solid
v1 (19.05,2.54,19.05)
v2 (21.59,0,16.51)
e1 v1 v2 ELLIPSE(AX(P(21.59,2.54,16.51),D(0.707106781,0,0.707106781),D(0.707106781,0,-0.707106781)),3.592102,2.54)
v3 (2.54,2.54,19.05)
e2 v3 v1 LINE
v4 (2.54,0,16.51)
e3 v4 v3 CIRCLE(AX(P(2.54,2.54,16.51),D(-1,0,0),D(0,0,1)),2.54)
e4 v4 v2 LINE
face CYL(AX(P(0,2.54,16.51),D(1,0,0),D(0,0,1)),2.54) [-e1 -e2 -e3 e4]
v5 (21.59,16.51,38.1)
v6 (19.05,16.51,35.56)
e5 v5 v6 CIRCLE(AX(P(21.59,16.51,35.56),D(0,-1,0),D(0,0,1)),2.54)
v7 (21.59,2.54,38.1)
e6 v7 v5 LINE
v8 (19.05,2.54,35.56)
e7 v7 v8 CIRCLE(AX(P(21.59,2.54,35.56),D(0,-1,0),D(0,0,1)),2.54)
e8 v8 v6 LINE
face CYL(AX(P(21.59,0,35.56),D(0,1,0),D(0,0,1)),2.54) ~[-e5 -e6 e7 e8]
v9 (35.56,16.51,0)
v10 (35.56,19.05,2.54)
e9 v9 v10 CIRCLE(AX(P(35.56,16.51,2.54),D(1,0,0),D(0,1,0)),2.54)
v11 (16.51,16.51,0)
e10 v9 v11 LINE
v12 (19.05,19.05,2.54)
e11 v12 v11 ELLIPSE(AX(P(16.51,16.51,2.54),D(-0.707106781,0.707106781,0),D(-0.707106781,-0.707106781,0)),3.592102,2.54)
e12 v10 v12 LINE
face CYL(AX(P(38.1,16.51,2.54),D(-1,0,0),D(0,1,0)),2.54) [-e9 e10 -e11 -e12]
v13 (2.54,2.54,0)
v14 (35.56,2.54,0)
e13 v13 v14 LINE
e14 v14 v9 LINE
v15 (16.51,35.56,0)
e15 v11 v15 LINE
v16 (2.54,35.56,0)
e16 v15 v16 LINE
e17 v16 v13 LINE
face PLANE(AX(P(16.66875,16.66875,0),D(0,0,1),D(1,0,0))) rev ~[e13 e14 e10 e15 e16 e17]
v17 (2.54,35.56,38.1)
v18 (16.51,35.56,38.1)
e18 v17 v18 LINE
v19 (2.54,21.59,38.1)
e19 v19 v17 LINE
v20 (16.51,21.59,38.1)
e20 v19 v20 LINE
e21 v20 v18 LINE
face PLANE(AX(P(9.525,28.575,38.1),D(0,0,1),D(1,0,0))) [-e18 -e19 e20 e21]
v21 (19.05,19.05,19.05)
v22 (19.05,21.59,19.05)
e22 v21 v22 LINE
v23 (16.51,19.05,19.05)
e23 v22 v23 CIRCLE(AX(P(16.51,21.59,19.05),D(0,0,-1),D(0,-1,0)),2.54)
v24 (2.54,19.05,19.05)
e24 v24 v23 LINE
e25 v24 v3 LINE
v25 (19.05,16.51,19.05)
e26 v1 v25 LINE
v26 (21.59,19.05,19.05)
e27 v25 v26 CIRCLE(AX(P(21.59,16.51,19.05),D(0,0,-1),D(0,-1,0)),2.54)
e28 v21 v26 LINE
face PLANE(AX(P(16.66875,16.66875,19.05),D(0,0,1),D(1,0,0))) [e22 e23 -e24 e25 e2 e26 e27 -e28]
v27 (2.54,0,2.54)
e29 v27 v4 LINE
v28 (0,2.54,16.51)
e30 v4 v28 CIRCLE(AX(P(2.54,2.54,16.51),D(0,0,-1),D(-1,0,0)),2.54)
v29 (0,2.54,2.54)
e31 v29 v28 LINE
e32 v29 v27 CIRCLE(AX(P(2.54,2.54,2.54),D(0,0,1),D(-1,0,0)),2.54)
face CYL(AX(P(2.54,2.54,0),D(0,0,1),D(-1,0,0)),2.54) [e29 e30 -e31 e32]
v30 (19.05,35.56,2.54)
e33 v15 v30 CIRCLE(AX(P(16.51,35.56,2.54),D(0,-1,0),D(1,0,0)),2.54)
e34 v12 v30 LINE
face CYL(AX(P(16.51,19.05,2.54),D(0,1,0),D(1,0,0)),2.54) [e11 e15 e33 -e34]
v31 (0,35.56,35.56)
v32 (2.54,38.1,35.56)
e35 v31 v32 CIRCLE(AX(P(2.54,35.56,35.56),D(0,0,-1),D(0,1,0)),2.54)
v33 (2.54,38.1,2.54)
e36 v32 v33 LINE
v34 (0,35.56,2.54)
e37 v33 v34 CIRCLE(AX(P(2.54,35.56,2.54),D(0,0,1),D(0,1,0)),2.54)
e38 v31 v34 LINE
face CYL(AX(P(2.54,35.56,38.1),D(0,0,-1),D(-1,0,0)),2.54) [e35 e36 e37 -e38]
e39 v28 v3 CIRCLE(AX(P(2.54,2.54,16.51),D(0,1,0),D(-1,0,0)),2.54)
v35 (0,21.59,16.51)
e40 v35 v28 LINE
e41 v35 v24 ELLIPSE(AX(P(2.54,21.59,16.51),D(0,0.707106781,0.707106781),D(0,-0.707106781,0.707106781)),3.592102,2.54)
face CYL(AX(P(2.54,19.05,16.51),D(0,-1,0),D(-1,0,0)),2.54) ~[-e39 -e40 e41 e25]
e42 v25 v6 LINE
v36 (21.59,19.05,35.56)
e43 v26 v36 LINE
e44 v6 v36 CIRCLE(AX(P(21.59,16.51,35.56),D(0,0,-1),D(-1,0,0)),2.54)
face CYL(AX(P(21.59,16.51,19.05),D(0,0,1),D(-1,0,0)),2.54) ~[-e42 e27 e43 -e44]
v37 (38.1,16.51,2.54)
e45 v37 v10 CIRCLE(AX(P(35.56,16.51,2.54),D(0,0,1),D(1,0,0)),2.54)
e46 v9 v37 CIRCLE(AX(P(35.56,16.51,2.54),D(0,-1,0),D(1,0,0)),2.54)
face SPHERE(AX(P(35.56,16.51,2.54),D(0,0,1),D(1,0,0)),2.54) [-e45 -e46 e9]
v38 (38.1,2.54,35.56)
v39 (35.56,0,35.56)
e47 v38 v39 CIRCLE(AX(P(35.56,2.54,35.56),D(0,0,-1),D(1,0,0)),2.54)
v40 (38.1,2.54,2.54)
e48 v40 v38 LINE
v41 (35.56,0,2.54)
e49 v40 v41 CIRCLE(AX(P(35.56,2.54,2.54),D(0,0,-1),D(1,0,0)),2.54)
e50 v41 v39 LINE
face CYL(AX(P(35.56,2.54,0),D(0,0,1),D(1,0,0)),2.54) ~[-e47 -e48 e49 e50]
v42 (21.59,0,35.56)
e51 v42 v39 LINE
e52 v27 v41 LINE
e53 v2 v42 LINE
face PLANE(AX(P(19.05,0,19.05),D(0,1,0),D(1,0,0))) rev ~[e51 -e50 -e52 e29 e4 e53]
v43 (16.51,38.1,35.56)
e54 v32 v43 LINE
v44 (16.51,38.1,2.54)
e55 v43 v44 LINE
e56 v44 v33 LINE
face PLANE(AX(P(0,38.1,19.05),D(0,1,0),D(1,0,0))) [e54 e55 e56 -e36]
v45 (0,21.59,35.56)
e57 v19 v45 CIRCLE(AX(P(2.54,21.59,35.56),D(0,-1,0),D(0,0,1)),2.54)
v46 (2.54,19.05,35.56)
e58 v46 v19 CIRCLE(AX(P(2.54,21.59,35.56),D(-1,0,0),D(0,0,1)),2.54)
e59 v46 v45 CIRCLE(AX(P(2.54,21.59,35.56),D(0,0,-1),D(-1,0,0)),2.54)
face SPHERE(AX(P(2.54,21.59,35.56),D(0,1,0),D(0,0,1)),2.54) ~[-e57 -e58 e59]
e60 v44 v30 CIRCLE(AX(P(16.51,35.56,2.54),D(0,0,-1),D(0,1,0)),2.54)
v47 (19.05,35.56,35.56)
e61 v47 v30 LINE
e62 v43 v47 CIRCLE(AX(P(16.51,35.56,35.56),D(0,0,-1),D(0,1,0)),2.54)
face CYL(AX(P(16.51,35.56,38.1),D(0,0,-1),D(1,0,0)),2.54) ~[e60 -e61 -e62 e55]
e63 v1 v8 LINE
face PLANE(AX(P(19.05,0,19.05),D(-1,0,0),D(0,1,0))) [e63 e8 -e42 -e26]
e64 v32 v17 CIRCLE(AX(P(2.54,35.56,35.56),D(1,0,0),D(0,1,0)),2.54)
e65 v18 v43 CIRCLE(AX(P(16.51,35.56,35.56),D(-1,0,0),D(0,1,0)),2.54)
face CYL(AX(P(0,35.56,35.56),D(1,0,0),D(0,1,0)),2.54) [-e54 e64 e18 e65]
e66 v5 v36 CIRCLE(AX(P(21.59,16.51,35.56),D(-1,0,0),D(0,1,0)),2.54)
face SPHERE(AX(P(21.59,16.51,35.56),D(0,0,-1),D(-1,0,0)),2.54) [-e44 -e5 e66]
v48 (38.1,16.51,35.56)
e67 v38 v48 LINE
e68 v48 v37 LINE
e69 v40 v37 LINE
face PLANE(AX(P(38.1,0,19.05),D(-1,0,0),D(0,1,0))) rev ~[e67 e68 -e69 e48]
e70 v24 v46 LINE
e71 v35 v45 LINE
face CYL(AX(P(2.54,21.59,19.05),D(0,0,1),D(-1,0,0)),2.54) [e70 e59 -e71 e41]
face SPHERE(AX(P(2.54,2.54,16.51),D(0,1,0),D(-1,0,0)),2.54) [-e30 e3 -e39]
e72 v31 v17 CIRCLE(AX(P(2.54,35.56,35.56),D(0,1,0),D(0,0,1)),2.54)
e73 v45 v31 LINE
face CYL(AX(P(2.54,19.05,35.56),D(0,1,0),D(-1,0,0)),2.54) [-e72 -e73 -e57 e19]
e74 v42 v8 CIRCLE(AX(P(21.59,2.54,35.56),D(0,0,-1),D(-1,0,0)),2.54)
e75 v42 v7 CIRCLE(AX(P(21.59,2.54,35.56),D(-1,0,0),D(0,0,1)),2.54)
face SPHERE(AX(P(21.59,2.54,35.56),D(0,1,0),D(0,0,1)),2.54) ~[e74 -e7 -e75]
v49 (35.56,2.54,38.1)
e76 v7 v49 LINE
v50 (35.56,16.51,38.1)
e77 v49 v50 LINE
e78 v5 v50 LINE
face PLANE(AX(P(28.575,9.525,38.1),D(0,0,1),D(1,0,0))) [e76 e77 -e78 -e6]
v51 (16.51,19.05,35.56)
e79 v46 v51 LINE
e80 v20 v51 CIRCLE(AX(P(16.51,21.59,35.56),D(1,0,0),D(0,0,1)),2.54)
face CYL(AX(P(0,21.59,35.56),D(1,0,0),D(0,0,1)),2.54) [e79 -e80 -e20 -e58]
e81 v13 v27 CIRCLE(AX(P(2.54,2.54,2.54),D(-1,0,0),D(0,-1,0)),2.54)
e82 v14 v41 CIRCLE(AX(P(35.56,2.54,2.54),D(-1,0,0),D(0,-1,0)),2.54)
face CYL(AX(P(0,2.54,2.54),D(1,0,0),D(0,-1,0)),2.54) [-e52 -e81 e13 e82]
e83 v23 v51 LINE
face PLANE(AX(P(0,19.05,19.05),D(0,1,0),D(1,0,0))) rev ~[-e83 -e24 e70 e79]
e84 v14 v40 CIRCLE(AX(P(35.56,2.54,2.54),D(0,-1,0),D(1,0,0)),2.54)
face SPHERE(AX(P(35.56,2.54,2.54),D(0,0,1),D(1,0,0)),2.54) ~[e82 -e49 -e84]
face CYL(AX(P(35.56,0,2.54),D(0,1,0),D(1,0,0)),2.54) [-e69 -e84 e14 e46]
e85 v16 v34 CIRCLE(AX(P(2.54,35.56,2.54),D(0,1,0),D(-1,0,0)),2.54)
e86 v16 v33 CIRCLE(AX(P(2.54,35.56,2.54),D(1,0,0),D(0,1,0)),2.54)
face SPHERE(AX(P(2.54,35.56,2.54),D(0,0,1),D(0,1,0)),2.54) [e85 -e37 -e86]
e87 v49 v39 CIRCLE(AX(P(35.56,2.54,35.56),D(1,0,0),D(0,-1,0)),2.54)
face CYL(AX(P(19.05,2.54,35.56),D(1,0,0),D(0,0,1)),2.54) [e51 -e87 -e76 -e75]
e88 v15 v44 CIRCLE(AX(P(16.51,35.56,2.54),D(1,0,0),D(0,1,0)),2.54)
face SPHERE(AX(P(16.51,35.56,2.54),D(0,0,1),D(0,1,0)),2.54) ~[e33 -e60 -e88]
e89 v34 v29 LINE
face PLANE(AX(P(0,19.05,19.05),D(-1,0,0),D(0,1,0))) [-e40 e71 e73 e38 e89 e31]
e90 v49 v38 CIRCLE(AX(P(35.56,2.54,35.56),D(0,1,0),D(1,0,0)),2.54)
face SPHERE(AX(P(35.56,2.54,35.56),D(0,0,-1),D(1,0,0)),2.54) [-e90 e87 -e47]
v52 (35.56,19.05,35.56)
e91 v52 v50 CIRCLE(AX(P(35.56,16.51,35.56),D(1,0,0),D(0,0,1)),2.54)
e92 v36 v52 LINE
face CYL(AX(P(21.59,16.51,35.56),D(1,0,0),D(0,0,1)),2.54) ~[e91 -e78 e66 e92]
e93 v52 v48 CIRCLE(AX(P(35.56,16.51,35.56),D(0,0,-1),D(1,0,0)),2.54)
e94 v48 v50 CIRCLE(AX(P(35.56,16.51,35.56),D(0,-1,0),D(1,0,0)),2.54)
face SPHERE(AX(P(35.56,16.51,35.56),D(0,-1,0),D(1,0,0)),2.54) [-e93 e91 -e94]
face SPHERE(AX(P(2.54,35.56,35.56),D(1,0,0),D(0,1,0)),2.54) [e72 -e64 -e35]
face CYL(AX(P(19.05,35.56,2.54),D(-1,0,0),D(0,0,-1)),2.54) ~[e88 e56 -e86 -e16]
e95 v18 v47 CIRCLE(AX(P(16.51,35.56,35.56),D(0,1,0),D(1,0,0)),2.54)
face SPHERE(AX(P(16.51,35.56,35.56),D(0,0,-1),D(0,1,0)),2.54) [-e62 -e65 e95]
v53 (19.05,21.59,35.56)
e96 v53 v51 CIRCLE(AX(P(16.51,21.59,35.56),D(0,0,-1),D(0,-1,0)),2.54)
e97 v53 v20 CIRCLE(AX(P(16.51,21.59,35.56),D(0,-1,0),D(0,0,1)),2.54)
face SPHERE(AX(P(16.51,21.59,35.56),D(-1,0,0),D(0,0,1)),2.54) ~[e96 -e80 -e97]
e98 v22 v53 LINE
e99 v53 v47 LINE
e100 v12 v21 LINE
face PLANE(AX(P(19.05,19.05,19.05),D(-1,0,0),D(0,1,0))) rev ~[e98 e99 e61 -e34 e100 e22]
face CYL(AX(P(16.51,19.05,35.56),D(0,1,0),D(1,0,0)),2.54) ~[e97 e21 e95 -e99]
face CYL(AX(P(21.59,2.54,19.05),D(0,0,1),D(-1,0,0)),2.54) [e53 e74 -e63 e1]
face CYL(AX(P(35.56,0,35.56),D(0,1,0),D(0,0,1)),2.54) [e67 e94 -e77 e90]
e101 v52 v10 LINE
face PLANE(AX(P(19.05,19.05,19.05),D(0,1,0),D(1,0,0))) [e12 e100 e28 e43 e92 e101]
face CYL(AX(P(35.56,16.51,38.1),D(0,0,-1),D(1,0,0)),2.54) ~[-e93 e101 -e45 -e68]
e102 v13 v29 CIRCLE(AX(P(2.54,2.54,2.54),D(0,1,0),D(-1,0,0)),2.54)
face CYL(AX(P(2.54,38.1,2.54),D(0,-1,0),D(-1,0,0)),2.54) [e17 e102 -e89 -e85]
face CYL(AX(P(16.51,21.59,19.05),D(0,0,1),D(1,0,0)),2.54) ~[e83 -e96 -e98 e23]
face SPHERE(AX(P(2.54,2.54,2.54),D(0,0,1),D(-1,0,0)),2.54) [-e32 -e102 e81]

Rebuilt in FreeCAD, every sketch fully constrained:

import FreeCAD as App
import Part
import Sketcher
Q = App.Units.Quantity


def edges_at(feature, points):
    """Names of the edges that pass closest to the given points."""
    edges = feature.Shape.Edges
    near = lambda p: min(range(len(edges)), key=lambda i: edges[i].distToShape(Part.Vertex(*p))[0])
    return sorted({f"Edge{near(p) + 1}" for p in points})

doc = App.newDocument("Part")
body = doc.addObject("PartDesign::Body", "Body")

# Sketch on XY plane
sketch1 = doc.addObject("Sketcher::SketchObject", "Sketch")
body.addObject(sketch1)
sketch1.AttachmentSupport = (doc.XY_Plane, [""])
sketch1.MapMode = "FlatFace"
sketch1.addGeometry([
    Part.LineSegment(App.Vector(0, 38, 0), App.Vector(0, 0, 0)),  # 0
    Part.LineSegment(App.Vector(0, 0, 0), App.Vector(38, 0, 0)),  # 1
    Part.LineSegment(App.Vector(38, 0, 0), App.Vector(38, 19, 0)),  # 2
    Part.LineSegment(App.Vector(38, 19, 0), App.Vector(19, 19, 0)),  # 3
    Part.LineSegment(App.Vector(19, 19, 0), App.Vector(19, 38, 0)),  # 4
    Part.LineSegment(App.Vector(19, 38, 0), App.Vector(0, 38, 0)),  # 5
], False)
sketch1.addConstraint([
    Sketcher.Constraint("Coincident", 0, 2, 1, 1),
    Sketcher.Constraint("Coincident", 1, 2, 2, 1),
    Sketcher.Constraint("Coincident", 2, 2, 3, 1),
    Sketcher.Constraint("Coincident", 3, 2, 4, 1),
    Sketcher.Constraint("Coincident", 4, 2, 5, 1),
    Sketcher.Constraint("Coincident", 5, 2, 0, 1),
    Sketcher.Constraint("Vertical", 0),
    Sketcher.Constraint("Horizontal", 1),
    Sketcher.Constraint("Vertical", 2),
    Sketcher.Constraint("Horizontal", 3),
    Sketcher.Constraint("Vertical", 4),
    Sketcher.Constraint("Horizontal", 5),
    Sketcher.Constraint("Coincident", 0, 2, -1, 1),
    Sketcher.Constraint("Equal", 3, 5),
    Sketcher.Constraint("Equal", 1, 0),
    Sketcher.Constraint("Equal", 5, 2),
    Sketcher.Constraint("DistanceX", 1, 1, 1, 2, Q("1.5 in")),
])
pad1 = doc.addObject("PartDesign::Pad", "Pad")
body.addObject(pad1)
pad1.Profile = sketch1
pad1.Length = Q("0.75 in")

# Sketch on XY plane
sketch2 = doc.addObject("Sketcher::SketchObject", "Sketch001")
body.addObject(sketch2)
sketch2.AttachmentSupport = (doc.XY_Plane, [""])
sketch2.MapMode = "FlatFace"
sketch2.AttachmentOffset = App.Placement(App.Vector(0, 0, 0.75 * 25.4), App.Rotation())
sketch2.addGeometry([
    Part.LineSegment(App.Vector(19, 19, 0), App.Vector(19, 0, 0)),
    Part.LineSegment(App.Vector(19, 0, 0), App.Vector(38, 0, 0)),
    Part.LineSegment(App.Vector(38, 0, 0), App.Vector(38, 19, 0)),
    Part.LineSegment(App.Vector(38, 19, 0), App.Vector(19, 19, 0)),
], False)
sketch2.addConstraint([
    Sketcher.Constraint("Coincident", 0, 2, 1, 1),
    Sketcher.Constraint("Coincident", 1, 2, 2, 1),
    Sketcher.Constraint("Coincident", 2, 2, 3, 1),
    Sketcher.Constraint("Coincident", 3, 2, 0, 1),
    Sketcher.Constraint("Vertical", 0),
    Sketcher.Constraint("Horizontal", 1),
    Sketcher.Constraint("Vertical", 2),
    Sketcher.Constraint("Horizontal", 3),
    Sketcher.Constraint("PointOnObject", 0, 2, -1),
    Sketcher.Constraint("Equal", 3, 0),
    Sketcher.Constraint("DistanceX", 1, 1, 1, 2, Q("0.75 in")),
    Sketcher.Constraint("DistanceX", -1, 1, 1, 2, Q("1.5 in")),
])
pad2 = doc.addObject("PartDesign::Pad", "Pad001")
body.addObject(pad2)
pad2.Profile = sketch2
pad2.Length = Q("0.75 in")
doc.recompute()

fillet = doc.addObject("PartDesign::Fillet", "Fillet")
body.addObject(fillet)
fillet.Base = (pad2, edges_at(pad2, [(19.05, 19.05, 28.575)]))
fillet.Radius = Q("0.1 in")

# Sketch on XY plane
sketch3 = doc.addObject("Sketcher::SketchObject", "Sketch002")
body.addObject(sketch3)
sketch3.AttachmentSupport = (doc.XY_Plane, [""])
sketch3.MapMode = "FlatFace"
sketch3.AttachmentOffset = App.Placement(App.Vector(0, 0, 0.75 * 25.4), App.Rotation())
sketch3.addGeometry([
    Part.LineSegment(App.Vector(0, 38, 0), App.Vector(0, 19, 0)),
    Part.LineSegment(App.Vector(0, 19, 0), App.Vector(19, 19, 0)),
    Part.LineSegment(App.Vector(19, 19, 0), App.Vector(19, 38, 0)),
    Part.LineSegment(App.Vector(19, 38, 0), App.Vector(0, 38, 0)),
], False)
sketch3.addConstraint([
    Sketcher.Constraint("Coincident", 0, 2, 1, 1),
    Sketcher.Constraint("Coincident", 1, 2, 2, 1),
    Sketcher.Constraint("Coincident", 2, 2, 3, 1),
    Sketcher.Constraint("Coincident", 3, 2, 0, 1),
    Sketcher.Constraint("Vertical", 0),
    Sketcher.Constraint("Horizontal", 1),
    Sketcher.Constraint("Vertical", 2),
    Sketcher.Constraint("Horizontal", 3),
    Sketcher.Constraint("PointOnObject", 0, 2, -2),
    Sketcher.Constraint("Equal", 3, 0),
    Sketcher.Constraint("DistanceX", 1, 1, 1, 2, Q("0.75 in")),
    Sketcher.Constraint("DistanceY", -1, 1, 2, 2, Q("1.5 in")),
])
pad3 = doc.addObject("PartDesign::Pad", "Pad002")
body.addObject(pad3)
pad3.Profile = sketch3
pad3.Length = Q("0.75 in")
doc.recompute()

fillet2 = doc.addObject("PartDesign::Fillet", "Fillet001")
body.addObject(fillet2)
fillet2.Base = (pad3, edges_at(pad3, [
    (38.1, 0, 19.05),
    (38.1, 9.525, 38.1),
    (38.1, 19.05, 19.05),
    (38.1, 9.525, 0),
    (19.05, 38.1, 19.05),
    (9.525, 38.1, 38.1),
    (0, 38.1, 19.05),
    (9.525, 38.1, 0),
    (0, 28.575, 38.1),
    (9.525, 19.05, 38.1),
    (19.05, 28.575, 38.1),
    (29.845, 19.05, 38.1),
    (19.794, 18.306, 38.1),
    (19.05, 8.255, 38.1),
    (28.575, 0, 38.1),
    (0, 19.05, 28.575),
    (0, 9.525, 19.05),
    (0, 0, 9.525),
    (0, 19.05, 0),
    (9.525, 0, 19.05),
    (19.05, 0, 28.575),
    (19.05, 0, 0),
    (28.575, 19.05, 0),
    (19.05, 28.575, 0),
    (19.05, 19.05, 28.575),
]))
fillet2.Radius = Q("0.1 in")

doc.recompute()
